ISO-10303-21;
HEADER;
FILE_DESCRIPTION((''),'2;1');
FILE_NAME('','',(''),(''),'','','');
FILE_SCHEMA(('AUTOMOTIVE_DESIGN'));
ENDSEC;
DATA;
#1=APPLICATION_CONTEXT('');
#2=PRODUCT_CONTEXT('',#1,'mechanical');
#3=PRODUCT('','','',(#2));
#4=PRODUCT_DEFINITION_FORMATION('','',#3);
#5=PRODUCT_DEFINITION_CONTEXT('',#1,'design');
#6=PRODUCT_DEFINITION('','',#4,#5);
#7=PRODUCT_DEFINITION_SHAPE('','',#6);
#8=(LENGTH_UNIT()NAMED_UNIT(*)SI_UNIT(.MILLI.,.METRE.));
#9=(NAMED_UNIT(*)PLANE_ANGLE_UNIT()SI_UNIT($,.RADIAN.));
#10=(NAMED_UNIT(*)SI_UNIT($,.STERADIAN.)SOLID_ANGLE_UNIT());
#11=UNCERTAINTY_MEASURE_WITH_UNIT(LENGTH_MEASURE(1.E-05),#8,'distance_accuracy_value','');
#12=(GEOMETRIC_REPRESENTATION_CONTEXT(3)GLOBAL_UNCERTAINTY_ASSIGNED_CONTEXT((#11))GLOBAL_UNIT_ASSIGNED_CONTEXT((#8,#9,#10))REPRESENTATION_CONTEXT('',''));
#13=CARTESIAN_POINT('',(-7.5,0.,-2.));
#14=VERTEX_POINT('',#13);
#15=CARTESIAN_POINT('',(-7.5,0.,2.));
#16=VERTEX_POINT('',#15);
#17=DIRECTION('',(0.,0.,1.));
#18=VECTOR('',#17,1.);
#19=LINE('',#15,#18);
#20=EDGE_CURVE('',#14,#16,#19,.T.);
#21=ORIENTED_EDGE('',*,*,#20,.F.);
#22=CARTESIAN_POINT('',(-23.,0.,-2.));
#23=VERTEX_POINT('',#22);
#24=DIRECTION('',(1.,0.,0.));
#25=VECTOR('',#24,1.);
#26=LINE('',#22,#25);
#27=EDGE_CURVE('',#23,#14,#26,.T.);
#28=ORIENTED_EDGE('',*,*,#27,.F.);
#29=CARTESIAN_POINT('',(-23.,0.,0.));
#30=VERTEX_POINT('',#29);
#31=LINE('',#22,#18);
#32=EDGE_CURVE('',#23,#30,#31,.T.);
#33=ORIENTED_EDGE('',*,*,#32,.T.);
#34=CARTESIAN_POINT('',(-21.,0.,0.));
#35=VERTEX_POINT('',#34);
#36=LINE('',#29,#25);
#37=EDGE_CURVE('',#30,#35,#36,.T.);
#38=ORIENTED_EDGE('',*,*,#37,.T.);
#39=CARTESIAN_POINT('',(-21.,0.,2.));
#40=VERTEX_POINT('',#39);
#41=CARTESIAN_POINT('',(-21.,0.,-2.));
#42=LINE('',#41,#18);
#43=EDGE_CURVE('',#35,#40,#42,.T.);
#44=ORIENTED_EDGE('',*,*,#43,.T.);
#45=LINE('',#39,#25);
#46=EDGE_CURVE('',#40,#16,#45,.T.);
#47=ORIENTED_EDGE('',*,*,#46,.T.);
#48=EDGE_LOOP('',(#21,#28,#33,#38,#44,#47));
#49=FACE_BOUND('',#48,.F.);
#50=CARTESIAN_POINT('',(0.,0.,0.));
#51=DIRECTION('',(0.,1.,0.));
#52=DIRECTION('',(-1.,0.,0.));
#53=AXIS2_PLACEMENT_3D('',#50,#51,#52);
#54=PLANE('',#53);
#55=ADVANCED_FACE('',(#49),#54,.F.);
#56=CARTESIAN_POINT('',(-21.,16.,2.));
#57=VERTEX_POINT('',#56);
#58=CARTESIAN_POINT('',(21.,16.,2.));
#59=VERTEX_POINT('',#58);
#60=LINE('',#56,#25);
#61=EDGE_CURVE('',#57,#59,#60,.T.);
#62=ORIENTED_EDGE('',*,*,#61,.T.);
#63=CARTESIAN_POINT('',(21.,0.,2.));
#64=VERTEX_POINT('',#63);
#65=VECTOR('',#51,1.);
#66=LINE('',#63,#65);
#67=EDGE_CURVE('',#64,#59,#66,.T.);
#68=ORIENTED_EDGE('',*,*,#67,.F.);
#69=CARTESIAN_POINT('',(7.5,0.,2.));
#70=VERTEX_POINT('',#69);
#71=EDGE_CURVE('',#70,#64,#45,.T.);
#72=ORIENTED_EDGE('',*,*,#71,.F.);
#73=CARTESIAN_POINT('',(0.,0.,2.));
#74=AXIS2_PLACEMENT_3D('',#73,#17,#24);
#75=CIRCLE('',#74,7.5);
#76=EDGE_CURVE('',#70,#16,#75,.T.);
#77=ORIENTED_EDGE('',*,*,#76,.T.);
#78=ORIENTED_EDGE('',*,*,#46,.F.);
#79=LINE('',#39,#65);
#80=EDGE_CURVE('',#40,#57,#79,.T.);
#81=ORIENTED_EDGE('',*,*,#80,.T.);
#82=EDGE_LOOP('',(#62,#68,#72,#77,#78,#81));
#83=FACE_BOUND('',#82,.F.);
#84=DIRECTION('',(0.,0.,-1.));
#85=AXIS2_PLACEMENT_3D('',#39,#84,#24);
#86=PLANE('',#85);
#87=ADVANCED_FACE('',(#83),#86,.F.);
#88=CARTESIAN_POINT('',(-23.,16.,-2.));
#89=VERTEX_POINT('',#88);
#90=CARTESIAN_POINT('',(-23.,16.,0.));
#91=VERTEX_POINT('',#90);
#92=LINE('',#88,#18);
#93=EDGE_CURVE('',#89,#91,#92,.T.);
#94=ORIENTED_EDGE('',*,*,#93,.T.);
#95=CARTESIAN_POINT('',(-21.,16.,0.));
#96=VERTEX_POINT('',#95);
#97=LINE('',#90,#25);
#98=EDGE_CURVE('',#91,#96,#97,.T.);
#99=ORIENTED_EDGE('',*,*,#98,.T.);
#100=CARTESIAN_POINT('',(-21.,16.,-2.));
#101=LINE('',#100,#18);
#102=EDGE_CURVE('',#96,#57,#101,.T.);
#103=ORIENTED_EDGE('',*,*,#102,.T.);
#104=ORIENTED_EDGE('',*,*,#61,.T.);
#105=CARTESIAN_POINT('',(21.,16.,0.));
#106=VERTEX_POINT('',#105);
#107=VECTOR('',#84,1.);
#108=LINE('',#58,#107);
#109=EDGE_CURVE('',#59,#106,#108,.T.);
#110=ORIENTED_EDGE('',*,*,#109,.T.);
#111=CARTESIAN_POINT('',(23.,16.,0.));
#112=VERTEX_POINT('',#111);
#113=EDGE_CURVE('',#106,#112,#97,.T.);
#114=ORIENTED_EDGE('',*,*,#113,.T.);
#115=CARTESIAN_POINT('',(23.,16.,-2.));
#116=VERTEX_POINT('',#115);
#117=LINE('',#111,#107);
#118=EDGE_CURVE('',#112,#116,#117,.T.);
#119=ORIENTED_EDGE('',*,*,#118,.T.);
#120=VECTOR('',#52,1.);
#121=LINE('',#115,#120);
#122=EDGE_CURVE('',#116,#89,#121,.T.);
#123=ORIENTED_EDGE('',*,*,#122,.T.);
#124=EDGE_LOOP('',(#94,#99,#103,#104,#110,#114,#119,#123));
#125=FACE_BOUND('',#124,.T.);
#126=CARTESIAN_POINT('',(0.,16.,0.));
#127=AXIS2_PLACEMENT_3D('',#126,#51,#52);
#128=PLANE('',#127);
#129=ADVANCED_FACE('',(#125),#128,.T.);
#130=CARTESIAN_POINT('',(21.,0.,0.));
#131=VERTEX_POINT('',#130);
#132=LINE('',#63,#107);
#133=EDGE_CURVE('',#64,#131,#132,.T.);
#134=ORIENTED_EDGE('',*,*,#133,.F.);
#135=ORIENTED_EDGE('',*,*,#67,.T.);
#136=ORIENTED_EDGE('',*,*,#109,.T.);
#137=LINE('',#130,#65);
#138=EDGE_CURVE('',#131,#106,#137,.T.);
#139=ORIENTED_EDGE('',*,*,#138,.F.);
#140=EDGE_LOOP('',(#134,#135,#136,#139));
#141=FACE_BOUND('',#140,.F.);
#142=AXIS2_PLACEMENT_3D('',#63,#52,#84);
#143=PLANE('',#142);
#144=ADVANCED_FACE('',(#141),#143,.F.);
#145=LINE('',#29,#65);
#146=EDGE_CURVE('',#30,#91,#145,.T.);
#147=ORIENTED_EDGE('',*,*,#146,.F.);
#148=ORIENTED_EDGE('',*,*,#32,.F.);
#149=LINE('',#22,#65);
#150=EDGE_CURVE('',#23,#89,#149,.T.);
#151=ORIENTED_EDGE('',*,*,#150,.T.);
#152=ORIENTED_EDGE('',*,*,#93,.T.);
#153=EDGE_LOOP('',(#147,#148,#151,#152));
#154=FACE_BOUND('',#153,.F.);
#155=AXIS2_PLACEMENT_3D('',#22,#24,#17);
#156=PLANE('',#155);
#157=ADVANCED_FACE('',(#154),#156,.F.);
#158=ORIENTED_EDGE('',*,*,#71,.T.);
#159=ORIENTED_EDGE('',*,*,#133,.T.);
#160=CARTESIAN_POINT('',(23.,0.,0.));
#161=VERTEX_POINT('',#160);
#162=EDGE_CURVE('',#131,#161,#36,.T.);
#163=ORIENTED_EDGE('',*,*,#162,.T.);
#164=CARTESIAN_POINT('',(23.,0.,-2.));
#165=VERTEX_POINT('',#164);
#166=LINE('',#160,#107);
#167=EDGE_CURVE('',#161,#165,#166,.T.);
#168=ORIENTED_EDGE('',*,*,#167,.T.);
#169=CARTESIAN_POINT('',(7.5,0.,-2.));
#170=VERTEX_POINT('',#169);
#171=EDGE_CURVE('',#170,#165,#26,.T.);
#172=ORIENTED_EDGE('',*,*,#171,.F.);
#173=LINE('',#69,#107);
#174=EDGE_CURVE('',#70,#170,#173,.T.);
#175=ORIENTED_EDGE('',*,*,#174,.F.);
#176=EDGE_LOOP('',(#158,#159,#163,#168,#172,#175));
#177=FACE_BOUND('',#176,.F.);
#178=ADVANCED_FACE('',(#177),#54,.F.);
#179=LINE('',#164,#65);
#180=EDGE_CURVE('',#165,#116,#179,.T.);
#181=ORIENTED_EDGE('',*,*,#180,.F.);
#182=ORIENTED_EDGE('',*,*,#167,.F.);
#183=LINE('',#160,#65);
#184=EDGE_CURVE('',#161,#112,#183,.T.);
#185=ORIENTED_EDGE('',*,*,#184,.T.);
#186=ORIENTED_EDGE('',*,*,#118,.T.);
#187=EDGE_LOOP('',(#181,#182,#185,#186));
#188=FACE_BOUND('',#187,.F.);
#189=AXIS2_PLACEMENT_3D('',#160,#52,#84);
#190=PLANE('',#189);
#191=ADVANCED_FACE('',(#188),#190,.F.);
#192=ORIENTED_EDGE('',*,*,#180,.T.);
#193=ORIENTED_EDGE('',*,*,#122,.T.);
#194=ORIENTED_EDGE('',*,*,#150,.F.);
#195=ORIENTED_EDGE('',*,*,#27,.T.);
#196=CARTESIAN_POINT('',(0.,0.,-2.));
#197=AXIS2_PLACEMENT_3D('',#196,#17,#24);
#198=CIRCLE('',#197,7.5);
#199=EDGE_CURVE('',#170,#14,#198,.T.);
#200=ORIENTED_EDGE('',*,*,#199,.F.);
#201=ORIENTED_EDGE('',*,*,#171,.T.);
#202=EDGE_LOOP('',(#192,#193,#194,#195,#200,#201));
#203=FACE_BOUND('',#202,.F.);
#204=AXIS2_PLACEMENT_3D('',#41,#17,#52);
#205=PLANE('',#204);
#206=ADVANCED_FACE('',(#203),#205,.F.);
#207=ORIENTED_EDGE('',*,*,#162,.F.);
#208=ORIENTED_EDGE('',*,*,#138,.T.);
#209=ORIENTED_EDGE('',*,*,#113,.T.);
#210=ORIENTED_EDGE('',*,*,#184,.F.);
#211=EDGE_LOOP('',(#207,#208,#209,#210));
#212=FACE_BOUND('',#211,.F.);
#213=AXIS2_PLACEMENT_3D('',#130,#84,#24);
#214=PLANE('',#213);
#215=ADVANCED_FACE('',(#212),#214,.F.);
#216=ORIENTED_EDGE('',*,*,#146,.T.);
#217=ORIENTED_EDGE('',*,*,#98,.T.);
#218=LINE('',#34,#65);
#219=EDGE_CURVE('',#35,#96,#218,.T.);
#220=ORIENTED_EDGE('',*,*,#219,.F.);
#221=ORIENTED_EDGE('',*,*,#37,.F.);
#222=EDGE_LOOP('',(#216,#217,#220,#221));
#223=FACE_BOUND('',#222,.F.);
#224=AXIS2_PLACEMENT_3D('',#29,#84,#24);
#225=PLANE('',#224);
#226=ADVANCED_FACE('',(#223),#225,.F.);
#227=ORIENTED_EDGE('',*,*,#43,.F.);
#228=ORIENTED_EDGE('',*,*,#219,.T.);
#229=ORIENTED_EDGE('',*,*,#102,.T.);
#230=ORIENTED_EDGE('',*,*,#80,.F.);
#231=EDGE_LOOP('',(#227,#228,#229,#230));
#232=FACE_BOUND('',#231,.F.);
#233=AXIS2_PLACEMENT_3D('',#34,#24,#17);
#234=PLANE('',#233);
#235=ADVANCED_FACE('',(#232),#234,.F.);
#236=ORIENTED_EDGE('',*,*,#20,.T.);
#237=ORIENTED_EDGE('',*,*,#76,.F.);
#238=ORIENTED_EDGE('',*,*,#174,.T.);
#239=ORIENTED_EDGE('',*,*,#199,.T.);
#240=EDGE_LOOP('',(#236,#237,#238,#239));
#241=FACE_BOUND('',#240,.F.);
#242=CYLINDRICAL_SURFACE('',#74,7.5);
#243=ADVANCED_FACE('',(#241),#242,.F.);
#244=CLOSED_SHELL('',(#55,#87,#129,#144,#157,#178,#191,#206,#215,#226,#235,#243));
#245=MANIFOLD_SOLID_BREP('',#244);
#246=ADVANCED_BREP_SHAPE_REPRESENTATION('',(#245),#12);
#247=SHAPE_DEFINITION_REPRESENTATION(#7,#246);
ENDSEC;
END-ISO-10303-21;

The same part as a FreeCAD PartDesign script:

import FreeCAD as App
import Part
import Sketcher
Q = App.Units.Quantity


def add_polygon(sketch, points):
    """Adds a closed chain of lines whose ends are joined by coincident constraints."""
    first, n = sketch.GeometryCount, len(points)
    for a, b in zip(points, points[1:] + points[:1]):
        sketch.addGeometry(Part.LineSegment(App.Vector(*a, 0), App.Vector(*b, 0)), False)
    for i in range(n):
        sketch.addConstraint(Sketcher.Constraint("Coincident", first + i, 2, first + (i + 1) % n, 1))

doc = App.newDocument("Part")
body = doc.addObject("PartDesign::Body", "Body")

sketch1 = doc.addObject("Sketcher::SketchObject", "Sketch")
body.addObject(sketch1)
sketch1.AttachmentSupport = (doc.XZ_Plane, [""])
sketch1.MapMode = "FlatFace"
add_polygon(sketch1, [(-21, 0), (-21, 2), (21, 2), (21, 0), (23, 0), (23, -2), (-23, -2), (-23, 0)])
sketch1.addConstraint(Sketcher.Constraint("Vertical", 0))
sketch1.addConstraint(Sketcher.Constraint("Horizontal", 1))
sketch1.addConstraint(Sketcher.Constraint("Vertical", 2))
sketch1.addConstraint(Sketcher.Constraint("Horizontal", 3))
sketch1.addConstraint(Sketcher.Constraint("Vertical", 4))
sketch1.addConstraint(Sketcher.Constraint("Horizontal", 5))
sketch1.addConstraint(Sketcher.Constraint("Vertical", 6))
sketch1.addConstraint(Sketcher.Constraint("Horizontal", 7))
sketch1.addConstraint(Sketcher.Constraint("Symmetric", 3, 2, 6, 2, -1, 1))
sketch1.addConstraint(Sketcher.Constraint("Symmetric", 2, 2, 7, 2, -2))
sketch1.addConstraint(Sketcher.Constraint("Equal", 7, 0))
sketch1.addConstraint(Sketcher.Constraint("Equal", 2, 4))
sketch1.addConstraint(Sketcher.Constraint("DistanceX", 1, 1, 1, 2, Q("42 mm")))
sketch1.addConstraint(Sketcher.Constraint("DistanceX", 3, 1, 3, 2, Q("2 mm")))
pad1 = doc.addObject("PartDesign::Pad", "Pad")
body.addObject(pad1)
pad1.Profile = sketch1
pad1.Length = 16
pad1.Reversed = True

sketch2 = doc.addObject("Sketcher::SketchObject", "Sketch001")
body.addObject(sketch2)
sketch2.AttachmentSupport = (doc.XY_Plane, [""])
sketch2.MapMode = "FlatFace"
sketch2.AttachmentOffset = App.Placement(App.Vector(0, 0, 2), App.Rotation())
sketch2.addGeometry(Part.Circle(App.Vector(0, 0, 0), App.Vector(0, 0, 1), 8), False)
sketch2.addConstraint(Sketcher.Constraint("Coincident", 0, 3, -1, 1))
sketch2.addConstraint(Sketcher.Constraint("Diameter", 0, Q("15 mm")))
pocket1 = doc.addObject("PartDesign::Pocket", "Pocket")
body.addObject(pocket1)
pocket1.Profile = sketch2
pocket1.Type = "UpToFirst"

doc.recompute()
